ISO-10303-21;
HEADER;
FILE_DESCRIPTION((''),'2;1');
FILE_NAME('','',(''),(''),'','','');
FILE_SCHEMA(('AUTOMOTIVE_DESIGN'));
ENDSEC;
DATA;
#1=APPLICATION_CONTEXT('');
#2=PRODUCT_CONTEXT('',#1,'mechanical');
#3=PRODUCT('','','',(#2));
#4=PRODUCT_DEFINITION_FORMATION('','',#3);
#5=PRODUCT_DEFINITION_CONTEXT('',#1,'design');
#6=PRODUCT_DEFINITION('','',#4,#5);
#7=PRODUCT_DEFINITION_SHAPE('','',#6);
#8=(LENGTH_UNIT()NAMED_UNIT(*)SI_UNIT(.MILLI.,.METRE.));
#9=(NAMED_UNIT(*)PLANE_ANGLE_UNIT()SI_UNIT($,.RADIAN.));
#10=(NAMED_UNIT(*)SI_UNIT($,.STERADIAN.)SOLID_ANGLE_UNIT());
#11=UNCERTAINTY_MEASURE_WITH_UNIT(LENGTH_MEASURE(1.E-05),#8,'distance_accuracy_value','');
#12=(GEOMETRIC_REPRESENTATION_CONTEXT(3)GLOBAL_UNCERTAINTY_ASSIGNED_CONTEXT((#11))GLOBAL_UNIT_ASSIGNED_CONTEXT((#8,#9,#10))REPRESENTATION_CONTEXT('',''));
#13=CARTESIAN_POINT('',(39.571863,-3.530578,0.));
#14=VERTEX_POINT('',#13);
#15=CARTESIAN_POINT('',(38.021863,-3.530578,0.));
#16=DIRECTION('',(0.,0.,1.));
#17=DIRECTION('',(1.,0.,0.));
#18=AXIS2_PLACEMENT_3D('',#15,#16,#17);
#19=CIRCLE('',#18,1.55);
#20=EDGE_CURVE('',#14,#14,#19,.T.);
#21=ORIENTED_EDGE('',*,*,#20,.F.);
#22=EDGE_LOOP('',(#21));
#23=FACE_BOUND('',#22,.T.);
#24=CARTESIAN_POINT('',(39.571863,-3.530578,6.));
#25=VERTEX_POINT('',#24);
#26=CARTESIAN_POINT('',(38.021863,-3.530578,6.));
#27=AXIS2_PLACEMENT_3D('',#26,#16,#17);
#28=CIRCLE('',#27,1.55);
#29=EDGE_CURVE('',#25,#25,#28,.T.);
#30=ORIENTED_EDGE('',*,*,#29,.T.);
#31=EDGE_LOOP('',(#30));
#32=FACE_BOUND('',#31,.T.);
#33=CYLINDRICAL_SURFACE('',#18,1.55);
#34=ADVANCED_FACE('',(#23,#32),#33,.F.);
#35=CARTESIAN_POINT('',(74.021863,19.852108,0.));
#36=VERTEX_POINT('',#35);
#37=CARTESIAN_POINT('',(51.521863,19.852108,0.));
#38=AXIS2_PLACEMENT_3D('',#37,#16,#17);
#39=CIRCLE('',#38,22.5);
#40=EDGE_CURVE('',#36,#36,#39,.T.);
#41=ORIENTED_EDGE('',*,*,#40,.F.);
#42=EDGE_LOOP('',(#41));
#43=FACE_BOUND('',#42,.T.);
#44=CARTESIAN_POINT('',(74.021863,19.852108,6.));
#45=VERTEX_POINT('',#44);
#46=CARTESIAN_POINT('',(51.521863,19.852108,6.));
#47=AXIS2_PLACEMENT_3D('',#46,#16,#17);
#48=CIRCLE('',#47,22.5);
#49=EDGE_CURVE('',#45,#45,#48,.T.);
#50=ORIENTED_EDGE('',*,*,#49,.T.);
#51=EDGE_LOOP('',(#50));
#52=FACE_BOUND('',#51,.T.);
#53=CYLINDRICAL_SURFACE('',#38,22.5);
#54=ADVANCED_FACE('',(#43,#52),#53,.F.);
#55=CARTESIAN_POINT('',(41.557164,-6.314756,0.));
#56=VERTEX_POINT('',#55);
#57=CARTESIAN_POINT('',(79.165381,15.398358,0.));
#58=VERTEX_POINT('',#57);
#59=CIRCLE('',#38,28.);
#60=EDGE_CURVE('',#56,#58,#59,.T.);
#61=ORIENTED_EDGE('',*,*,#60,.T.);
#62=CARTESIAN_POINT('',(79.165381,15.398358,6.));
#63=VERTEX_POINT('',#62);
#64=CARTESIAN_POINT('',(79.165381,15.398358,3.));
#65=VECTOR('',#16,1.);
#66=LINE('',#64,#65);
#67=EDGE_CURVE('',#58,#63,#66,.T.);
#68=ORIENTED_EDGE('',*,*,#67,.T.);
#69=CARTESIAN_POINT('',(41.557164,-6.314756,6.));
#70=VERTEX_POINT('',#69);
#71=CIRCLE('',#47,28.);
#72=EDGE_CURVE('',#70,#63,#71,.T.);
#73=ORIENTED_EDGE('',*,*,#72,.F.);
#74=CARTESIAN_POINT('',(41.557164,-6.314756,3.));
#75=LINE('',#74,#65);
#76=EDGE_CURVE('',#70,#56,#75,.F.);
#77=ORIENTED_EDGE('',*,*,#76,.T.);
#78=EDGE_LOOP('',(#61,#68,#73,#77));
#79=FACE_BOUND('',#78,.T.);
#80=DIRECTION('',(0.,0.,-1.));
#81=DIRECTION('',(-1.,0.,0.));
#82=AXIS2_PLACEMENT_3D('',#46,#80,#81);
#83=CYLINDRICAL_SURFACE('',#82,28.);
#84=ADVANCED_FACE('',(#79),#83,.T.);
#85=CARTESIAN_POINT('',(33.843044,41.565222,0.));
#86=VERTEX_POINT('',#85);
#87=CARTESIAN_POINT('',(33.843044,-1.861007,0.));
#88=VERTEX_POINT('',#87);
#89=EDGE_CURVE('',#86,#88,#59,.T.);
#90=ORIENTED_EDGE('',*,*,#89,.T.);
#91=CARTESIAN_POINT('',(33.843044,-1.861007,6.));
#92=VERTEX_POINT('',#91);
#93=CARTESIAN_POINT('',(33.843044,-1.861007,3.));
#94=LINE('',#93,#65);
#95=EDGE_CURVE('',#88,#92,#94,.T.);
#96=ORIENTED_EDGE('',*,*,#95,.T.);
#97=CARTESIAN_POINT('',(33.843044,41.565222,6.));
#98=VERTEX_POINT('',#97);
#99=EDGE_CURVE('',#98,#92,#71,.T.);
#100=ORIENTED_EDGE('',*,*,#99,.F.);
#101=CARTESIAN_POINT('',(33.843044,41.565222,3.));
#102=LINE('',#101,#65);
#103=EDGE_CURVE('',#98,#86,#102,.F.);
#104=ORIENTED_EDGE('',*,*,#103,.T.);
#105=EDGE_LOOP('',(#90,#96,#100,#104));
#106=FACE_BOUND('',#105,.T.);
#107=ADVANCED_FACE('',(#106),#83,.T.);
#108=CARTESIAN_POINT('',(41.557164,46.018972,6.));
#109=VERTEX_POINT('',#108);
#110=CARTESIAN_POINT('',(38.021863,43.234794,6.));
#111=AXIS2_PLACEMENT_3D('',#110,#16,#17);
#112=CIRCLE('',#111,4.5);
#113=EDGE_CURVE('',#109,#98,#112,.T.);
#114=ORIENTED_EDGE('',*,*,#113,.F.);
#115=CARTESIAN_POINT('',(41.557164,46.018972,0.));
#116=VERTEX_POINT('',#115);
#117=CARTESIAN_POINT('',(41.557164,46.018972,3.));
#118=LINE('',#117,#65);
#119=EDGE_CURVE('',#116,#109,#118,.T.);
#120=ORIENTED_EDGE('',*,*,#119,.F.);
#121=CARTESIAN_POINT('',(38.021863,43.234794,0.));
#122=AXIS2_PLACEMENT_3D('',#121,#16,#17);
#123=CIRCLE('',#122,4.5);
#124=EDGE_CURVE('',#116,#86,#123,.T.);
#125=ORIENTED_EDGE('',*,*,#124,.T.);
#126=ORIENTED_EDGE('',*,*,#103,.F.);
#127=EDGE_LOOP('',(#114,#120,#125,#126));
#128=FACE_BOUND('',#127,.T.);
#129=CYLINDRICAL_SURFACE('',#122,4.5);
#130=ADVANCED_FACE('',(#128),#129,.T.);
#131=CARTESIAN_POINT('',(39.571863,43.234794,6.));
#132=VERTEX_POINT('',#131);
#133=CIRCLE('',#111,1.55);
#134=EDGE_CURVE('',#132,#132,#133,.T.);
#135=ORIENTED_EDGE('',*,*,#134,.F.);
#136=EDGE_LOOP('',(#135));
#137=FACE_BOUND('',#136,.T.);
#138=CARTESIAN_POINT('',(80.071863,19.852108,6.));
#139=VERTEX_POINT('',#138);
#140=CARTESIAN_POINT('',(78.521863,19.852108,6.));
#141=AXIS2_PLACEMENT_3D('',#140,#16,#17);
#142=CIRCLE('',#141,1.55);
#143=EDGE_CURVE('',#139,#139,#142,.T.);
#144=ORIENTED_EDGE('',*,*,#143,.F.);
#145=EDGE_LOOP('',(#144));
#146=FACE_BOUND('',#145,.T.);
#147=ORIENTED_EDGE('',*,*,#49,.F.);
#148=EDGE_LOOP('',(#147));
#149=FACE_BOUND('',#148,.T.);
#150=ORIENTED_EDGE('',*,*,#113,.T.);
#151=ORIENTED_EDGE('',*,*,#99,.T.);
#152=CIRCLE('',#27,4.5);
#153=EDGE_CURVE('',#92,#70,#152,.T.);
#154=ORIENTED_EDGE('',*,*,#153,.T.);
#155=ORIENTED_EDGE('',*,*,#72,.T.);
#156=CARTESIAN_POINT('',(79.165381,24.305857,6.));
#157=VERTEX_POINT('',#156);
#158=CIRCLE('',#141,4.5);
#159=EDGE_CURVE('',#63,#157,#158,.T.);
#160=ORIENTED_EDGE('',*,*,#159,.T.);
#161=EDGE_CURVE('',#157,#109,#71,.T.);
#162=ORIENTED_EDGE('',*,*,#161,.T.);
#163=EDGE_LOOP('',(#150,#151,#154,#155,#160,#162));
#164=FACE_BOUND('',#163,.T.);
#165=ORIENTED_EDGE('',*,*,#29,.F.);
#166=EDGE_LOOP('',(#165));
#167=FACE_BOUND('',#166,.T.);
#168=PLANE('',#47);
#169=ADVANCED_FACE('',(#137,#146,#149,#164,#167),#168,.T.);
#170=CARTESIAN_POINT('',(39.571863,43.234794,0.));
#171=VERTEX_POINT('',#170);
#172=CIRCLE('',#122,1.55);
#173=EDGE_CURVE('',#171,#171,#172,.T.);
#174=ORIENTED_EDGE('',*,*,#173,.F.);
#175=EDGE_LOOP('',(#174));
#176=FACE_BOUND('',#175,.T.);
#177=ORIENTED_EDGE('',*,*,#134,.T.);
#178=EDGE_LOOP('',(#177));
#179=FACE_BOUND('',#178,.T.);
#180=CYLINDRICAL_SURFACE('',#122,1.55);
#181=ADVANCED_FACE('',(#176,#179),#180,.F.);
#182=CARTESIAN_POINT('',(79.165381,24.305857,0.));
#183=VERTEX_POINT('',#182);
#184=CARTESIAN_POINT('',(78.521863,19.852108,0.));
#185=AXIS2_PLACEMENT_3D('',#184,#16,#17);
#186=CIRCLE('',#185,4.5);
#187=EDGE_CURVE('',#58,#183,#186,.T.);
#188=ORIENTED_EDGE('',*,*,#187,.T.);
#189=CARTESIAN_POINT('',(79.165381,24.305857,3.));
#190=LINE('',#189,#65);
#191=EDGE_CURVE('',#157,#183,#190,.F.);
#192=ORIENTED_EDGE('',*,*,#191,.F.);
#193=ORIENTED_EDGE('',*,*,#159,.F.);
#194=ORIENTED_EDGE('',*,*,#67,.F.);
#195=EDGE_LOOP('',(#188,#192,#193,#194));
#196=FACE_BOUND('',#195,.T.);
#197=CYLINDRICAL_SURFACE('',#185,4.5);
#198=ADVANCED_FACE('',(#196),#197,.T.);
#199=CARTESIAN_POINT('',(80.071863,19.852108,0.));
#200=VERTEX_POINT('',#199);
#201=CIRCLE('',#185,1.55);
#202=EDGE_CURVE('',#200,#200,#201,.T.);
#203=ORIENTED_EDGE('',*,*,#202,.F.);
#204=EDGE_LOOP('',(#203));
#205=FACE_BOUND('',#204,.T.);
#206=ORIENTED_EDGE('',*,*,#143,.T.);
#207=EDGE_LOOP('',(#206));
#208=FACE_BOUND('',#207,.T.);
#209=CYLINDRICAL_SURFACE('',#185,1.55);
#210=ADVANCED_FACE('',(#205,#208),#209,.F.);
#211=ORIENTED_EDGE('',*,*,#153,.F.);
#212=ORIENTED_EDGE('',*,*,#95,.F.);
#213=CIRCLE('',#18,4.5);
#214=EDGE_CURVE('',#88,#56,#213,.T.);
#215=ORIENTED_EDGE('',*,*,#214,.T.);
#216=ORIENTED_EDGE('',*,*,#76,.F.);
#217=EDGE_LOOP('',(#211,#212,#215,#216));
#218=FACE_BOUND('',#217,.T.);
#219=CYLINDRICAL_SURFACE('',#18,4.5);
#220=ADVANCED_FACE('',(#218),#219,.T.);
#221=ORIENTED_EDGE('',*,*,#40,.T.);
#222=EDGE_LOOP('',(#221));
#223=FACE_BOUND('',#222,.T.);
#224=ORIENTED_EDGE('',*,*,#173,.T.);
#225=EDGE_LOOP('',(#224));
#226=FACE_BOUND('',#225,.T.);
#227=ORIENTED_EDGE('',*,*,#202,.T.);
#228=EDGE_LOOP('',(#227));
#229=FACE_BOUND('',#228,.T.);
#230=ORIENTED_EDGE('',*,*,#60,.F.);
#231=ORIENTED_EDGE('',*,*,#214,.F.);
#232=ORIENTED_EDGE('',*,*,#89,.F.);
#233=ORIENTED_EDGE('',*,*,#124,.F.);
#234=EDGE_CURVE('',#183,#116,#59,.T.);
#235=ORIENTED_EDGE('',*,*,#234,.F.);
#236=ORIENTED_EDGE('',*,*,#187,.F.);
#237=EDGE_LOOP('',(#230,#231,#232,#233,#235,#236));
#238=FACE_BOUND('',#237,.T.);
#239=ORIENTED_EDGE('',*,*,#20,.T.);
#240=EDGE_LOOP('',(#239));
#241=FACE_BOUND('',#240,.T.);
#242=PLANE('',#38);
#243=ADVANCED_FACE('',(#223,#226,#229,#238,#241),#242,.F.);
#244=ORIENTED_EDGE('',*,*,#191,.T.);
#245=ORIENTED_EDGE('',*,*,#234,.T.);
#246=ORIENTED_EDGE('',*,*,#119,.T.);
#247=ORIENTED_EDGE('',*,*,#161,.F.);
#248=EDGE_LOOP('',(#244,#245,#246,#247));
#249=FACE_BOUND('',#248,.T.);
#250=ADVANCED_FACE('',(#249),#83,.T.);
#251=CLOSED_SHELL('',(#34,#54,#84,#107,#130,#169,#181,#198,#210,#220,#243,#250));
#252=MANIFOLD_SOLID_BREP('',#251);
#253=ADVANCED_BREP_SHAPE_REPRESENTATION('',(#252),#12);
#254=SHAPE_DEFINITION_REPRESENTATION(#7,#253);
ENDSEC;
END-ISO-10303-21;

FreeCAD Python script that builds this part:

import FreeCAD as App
import Part
import Sketcher
Q = App.Units.Quantity

doc = App.newDocument("Part")
body = doc.addObject("PartDesign::Body", "Body")

# Sketch on XY plane
sketch1 = body.newObject("Sketcher::SketchObject", "Sketch")
sketch1.AttachmentSupport = (doc.getObject("XY_Plane"), [""])
sketch1.MapMode = "FlatFace"
sketch1.addGeometry(Part.Circle(App.Vector(52, 20, 0), App.Vector(0, 0, 1), 28), False)
sketch1.addConstraint(Sketcher.Constraint("Diameter", 0, Q("56 mm")))
sketch1.addConstraint(Sketcher.Constraint("DistanceX", -1, 1, 0, 3, Q("51.521863 mm")))
sketch1.addConstraint(Sketcher.Constraint("DistanceY", -1, 1, 0, 3, Q("19.852108 mm")))
pad1 = body.newObject("PartDesign::Pad", "Pad")
pad1.Profile = sketch1
pad1.Length = 6

# Sketch on XY plane
sketch2 = body.newObject("Sketcher::SketchObject", "Sketch001")
sketch2.AttachmentSupport = (doc.getObject("XY_Plane"), [""])
sketch2.MapMode = "FlatFace"
sketch2.AttachmentOffset = App.Placement(App.Vector(0, 0, 6), App.Rotation())
sketch2.addGeometry(Part.Circle(App.Vector(52, 20, 0), App.Vector(0, 0, 1), 22), False)
sketch2.addConstraint(Sketcher.Constraint("Diameter", 0, Q("45 mm")))
sketch2.addConstraint(Sketcher.Constraint("DistanceX", -1, 1, 0, 3, Q("51.521863 mm")))
sketch2.addConstraint(Sketcher.Constraint("DistanceY", -1, 1, 0, 3, Q("19.852108 mm")))
pocket1 = body.newObject("PartDesign::Pocket", "Pocket")
pocket1.Profile = sketch2
pocket1.Length = 6

# Sketch on XY plane
sketch3 = body.newObject("Sketcher::SketchObject", "Sketch002")
sketch3.AttachmentSupport = (doc.getObject("XY_Plane"), [""])
sketch3.MapMode = "FlatFace"
sketch3.AttachmentOffset = App.Placement(App.Vector(0, 0, 6), App.Rotation())
sketch3.addGeometry(Part.Circle(App.Vector(78.5, 19.9, 0), App.Vector(0, 0, 1), 4.5), False)
sketch3.addGeometry(Part.Circle(App.Vector(38, -3.5, 0), App.Vector(0, 0, 1), 4.5), False)
sketch3.addGeometry(Part.Circle(App.Vector(38, 43.2, 0), App.Vector(0, 0, 1), 4.5), False)
sketch3.addConstraint(Sketcher.Constraint("Equal", 0, 1))
sketch3.addConstraint(Sketcher.Constraint("Equal", 1, 2))
sketch3.addConstraint(Sketcher.Constraint("Vertical", 1, 3, 2, 3))
sketch3.addConstraint(Sketcher.Constraint("Diameter", 0, Q("9 mm")))
sketch3.addConstraint(Sketcher.Constraint("DistanceX", 1, 3, 0, 3, Q("40.5 mm")))
sketch3.addConstraint(Sketcher.Constraint("DistanceY", 1, 3, -1, 1, Q("3.530578 mm")))
sketch3.addConstraint(Sketcher.Constraint("DistanceY", 1, 3, 2, 3, Q("46.765372 mm")))
sketch3.addConstraint(Sketcher.Constraint("DistanceX", -1, 1, 0, 3, Q("78.521863 mm")))
sketch3.addConstraint(Sketcher.Constraint("DistanceY", -1, 1, 0, 3, Q("19.852108 mm")))
pad2 = body.newObject("PartDesign::Pad", "Pad001")
pad2.Profile = sketch3
pad2.Length = 6
pad2.Reversed = True

# Sketch on XY plane
sketch4 = body.newObject("Sketcher::SketchObject", "Sketch003")
sketch4.AttachmentSupport = (doc.getObject("XY_Plane"), [""])
sketch4.MapMode = "FlatFace"
sketch4.AttachmentOffset = App.Placement(App.Vector(0, 0, 6), App.Rotation())
sketch4.addGeometry(Part.Circle(App.Vector(78.5, 19.9, 0), App.Vector(0, 0, 1), 1.6), False)
sketch4.addGeometry(Part.Circle(App.Vector(38, -3.5, 0), App.Vector(0, 0, 1), 1.6), False)
sketch4.addGeometry(Part.Circle(App.Vector(38, 43.2, 0), App.Vector(0, 0, 1), 1.6), False)
sketch4.addConstraint(Sketcher.Constraint("Equal", 0, 1))
sketch4.addConstraint(Sketcher.Constraint("Equal", 1, 2))
sketch4.addConstraint(Sketcher.Constraint("Vertical", 1, 3, 2, 3))
sketch4.addConstraint(Sketcher.Constraint("Diameter", 0, Q("3.1 mm")))
sketch4.addConstraint(Sketcher.Constraint("DistanceX", 1, 3, 0, 3, Q("40.5 mm")))
sketch4.addConstraint(Sketcher.Constraint("DistanceY", 1, 3, -1, 1, Q("3.530578 mm")))
sketch4.addConstraint(Sketcher.Constraint("DistanceY", 1, 3, 2, 3, Q("46.765372 mm")))
sketch4.addConstraint(Sketcher.Constraint("DistanceX", -1, 1, 0, 3, Q("78.521863 mm")))
sketch4.addConstraint(Sketcher.Constraint("DistanceY", -1, 1, 0, 3, Q("19.852108 mm")))
pocket2 = body.newObject("PartDesign::Pocket", "Pocket001")
pocket2.Profile = sketch4
pocket2.Length = 6

doc.recompute()
